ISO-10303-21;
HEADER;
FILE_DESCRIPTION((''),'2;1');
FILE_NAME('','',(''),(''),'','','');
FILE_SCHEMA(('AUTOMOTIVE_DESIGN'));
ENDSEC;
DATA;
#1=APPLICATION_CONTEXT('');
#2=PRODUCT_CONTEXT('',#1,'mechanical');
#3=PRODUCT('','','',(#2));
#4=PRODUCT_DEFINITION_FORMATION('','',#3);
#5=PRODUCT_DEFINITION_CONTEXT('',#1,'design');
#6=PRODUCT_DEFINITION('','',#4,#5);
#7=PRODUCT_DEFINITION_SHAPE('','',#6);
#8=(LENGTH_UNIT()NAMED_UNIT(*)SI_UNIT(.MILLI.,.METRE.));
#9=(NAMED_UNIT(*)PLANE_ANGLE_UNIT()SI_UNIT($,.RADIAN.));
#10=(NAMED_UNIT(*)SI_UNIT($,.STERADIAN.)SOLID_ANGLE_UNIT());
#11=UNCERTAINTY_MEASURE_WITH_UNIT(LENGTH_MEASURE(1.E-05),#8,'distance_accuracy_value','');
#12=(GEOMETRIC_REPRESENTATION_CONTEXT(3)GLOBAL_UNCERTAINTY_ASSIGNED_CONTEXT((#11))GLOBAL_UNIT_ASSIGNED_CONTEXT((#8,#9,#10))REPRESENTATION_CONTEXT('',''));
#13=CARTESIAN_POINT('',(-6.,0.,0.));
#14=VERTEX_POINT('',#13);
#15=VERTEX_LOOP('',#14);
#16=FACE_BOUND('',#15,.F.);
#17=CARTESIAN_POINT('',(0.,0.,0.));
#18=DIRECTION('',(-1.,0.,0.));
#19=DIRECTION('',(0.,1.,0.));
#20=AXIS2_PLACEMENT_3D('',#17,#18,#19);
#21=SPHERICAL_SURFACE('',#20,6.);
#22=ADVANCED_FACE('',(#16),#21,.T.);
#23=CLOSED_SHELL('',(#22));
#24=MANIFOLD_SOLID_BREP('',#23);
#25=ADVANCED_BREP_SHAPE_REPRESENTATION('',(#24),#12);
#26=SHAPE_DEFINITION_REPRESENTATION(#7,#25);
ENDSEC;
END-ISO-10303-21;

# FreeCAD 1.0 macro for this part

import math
import FreeCAD as App
import Part
import Sketcher
from FreeCAD import Vector
Q = App.Units.Quantity

doc = App.newDocument("Part")
body = doc.addObject("PartDesign::Body", "Body")

sketch1 = body.newObject("Sketcher::SketchObject", "Sketch")
sketch1.AttachmentSupport = (doc.getObject("XY_Plane"), [""])
sketch1.MapMode = "FlatFace"
sketch1.addGeometry(Part.LineSegment(Vector(-6, 0, 0), Vector(6, 0, 0)), False)
sketch1.addGeometry(Part.ArcOfCircle(Part.Circle(Vector(0, 0, 0), Vector(0, 0, 1), 6), math.radians(0), math.radians(180)), False)
sketch1.addConstraint(Sketcher.Constraint("Coincident", 0, 1, 1, 2))
sketch1.addConstraint(Sketcher.Constraint("Coincident", 1, 1, 0, 2))
sketch1.addConstraint(Sketcher.Constraint("Horizontal", 0))
sketch1.addConstraint(Sketcher.Constraint("Coincident", 1, 3, -1, 1))
sketch1.addConstraint(Sketcher.Constraint("PointOnObject", 0, 1, -1))
sketch1.addConstraint(Sketcher.Constraint("Radius", 1, Q("6 mm")))
revolution = body.newObject("PartDesign::Revolution", "Revolution")
revolution.Profile = sketch1
revolution.ReferenceAxis = (sketch1, ["H_Axis"])
revolution.Angle = 360

doc.recompute()
